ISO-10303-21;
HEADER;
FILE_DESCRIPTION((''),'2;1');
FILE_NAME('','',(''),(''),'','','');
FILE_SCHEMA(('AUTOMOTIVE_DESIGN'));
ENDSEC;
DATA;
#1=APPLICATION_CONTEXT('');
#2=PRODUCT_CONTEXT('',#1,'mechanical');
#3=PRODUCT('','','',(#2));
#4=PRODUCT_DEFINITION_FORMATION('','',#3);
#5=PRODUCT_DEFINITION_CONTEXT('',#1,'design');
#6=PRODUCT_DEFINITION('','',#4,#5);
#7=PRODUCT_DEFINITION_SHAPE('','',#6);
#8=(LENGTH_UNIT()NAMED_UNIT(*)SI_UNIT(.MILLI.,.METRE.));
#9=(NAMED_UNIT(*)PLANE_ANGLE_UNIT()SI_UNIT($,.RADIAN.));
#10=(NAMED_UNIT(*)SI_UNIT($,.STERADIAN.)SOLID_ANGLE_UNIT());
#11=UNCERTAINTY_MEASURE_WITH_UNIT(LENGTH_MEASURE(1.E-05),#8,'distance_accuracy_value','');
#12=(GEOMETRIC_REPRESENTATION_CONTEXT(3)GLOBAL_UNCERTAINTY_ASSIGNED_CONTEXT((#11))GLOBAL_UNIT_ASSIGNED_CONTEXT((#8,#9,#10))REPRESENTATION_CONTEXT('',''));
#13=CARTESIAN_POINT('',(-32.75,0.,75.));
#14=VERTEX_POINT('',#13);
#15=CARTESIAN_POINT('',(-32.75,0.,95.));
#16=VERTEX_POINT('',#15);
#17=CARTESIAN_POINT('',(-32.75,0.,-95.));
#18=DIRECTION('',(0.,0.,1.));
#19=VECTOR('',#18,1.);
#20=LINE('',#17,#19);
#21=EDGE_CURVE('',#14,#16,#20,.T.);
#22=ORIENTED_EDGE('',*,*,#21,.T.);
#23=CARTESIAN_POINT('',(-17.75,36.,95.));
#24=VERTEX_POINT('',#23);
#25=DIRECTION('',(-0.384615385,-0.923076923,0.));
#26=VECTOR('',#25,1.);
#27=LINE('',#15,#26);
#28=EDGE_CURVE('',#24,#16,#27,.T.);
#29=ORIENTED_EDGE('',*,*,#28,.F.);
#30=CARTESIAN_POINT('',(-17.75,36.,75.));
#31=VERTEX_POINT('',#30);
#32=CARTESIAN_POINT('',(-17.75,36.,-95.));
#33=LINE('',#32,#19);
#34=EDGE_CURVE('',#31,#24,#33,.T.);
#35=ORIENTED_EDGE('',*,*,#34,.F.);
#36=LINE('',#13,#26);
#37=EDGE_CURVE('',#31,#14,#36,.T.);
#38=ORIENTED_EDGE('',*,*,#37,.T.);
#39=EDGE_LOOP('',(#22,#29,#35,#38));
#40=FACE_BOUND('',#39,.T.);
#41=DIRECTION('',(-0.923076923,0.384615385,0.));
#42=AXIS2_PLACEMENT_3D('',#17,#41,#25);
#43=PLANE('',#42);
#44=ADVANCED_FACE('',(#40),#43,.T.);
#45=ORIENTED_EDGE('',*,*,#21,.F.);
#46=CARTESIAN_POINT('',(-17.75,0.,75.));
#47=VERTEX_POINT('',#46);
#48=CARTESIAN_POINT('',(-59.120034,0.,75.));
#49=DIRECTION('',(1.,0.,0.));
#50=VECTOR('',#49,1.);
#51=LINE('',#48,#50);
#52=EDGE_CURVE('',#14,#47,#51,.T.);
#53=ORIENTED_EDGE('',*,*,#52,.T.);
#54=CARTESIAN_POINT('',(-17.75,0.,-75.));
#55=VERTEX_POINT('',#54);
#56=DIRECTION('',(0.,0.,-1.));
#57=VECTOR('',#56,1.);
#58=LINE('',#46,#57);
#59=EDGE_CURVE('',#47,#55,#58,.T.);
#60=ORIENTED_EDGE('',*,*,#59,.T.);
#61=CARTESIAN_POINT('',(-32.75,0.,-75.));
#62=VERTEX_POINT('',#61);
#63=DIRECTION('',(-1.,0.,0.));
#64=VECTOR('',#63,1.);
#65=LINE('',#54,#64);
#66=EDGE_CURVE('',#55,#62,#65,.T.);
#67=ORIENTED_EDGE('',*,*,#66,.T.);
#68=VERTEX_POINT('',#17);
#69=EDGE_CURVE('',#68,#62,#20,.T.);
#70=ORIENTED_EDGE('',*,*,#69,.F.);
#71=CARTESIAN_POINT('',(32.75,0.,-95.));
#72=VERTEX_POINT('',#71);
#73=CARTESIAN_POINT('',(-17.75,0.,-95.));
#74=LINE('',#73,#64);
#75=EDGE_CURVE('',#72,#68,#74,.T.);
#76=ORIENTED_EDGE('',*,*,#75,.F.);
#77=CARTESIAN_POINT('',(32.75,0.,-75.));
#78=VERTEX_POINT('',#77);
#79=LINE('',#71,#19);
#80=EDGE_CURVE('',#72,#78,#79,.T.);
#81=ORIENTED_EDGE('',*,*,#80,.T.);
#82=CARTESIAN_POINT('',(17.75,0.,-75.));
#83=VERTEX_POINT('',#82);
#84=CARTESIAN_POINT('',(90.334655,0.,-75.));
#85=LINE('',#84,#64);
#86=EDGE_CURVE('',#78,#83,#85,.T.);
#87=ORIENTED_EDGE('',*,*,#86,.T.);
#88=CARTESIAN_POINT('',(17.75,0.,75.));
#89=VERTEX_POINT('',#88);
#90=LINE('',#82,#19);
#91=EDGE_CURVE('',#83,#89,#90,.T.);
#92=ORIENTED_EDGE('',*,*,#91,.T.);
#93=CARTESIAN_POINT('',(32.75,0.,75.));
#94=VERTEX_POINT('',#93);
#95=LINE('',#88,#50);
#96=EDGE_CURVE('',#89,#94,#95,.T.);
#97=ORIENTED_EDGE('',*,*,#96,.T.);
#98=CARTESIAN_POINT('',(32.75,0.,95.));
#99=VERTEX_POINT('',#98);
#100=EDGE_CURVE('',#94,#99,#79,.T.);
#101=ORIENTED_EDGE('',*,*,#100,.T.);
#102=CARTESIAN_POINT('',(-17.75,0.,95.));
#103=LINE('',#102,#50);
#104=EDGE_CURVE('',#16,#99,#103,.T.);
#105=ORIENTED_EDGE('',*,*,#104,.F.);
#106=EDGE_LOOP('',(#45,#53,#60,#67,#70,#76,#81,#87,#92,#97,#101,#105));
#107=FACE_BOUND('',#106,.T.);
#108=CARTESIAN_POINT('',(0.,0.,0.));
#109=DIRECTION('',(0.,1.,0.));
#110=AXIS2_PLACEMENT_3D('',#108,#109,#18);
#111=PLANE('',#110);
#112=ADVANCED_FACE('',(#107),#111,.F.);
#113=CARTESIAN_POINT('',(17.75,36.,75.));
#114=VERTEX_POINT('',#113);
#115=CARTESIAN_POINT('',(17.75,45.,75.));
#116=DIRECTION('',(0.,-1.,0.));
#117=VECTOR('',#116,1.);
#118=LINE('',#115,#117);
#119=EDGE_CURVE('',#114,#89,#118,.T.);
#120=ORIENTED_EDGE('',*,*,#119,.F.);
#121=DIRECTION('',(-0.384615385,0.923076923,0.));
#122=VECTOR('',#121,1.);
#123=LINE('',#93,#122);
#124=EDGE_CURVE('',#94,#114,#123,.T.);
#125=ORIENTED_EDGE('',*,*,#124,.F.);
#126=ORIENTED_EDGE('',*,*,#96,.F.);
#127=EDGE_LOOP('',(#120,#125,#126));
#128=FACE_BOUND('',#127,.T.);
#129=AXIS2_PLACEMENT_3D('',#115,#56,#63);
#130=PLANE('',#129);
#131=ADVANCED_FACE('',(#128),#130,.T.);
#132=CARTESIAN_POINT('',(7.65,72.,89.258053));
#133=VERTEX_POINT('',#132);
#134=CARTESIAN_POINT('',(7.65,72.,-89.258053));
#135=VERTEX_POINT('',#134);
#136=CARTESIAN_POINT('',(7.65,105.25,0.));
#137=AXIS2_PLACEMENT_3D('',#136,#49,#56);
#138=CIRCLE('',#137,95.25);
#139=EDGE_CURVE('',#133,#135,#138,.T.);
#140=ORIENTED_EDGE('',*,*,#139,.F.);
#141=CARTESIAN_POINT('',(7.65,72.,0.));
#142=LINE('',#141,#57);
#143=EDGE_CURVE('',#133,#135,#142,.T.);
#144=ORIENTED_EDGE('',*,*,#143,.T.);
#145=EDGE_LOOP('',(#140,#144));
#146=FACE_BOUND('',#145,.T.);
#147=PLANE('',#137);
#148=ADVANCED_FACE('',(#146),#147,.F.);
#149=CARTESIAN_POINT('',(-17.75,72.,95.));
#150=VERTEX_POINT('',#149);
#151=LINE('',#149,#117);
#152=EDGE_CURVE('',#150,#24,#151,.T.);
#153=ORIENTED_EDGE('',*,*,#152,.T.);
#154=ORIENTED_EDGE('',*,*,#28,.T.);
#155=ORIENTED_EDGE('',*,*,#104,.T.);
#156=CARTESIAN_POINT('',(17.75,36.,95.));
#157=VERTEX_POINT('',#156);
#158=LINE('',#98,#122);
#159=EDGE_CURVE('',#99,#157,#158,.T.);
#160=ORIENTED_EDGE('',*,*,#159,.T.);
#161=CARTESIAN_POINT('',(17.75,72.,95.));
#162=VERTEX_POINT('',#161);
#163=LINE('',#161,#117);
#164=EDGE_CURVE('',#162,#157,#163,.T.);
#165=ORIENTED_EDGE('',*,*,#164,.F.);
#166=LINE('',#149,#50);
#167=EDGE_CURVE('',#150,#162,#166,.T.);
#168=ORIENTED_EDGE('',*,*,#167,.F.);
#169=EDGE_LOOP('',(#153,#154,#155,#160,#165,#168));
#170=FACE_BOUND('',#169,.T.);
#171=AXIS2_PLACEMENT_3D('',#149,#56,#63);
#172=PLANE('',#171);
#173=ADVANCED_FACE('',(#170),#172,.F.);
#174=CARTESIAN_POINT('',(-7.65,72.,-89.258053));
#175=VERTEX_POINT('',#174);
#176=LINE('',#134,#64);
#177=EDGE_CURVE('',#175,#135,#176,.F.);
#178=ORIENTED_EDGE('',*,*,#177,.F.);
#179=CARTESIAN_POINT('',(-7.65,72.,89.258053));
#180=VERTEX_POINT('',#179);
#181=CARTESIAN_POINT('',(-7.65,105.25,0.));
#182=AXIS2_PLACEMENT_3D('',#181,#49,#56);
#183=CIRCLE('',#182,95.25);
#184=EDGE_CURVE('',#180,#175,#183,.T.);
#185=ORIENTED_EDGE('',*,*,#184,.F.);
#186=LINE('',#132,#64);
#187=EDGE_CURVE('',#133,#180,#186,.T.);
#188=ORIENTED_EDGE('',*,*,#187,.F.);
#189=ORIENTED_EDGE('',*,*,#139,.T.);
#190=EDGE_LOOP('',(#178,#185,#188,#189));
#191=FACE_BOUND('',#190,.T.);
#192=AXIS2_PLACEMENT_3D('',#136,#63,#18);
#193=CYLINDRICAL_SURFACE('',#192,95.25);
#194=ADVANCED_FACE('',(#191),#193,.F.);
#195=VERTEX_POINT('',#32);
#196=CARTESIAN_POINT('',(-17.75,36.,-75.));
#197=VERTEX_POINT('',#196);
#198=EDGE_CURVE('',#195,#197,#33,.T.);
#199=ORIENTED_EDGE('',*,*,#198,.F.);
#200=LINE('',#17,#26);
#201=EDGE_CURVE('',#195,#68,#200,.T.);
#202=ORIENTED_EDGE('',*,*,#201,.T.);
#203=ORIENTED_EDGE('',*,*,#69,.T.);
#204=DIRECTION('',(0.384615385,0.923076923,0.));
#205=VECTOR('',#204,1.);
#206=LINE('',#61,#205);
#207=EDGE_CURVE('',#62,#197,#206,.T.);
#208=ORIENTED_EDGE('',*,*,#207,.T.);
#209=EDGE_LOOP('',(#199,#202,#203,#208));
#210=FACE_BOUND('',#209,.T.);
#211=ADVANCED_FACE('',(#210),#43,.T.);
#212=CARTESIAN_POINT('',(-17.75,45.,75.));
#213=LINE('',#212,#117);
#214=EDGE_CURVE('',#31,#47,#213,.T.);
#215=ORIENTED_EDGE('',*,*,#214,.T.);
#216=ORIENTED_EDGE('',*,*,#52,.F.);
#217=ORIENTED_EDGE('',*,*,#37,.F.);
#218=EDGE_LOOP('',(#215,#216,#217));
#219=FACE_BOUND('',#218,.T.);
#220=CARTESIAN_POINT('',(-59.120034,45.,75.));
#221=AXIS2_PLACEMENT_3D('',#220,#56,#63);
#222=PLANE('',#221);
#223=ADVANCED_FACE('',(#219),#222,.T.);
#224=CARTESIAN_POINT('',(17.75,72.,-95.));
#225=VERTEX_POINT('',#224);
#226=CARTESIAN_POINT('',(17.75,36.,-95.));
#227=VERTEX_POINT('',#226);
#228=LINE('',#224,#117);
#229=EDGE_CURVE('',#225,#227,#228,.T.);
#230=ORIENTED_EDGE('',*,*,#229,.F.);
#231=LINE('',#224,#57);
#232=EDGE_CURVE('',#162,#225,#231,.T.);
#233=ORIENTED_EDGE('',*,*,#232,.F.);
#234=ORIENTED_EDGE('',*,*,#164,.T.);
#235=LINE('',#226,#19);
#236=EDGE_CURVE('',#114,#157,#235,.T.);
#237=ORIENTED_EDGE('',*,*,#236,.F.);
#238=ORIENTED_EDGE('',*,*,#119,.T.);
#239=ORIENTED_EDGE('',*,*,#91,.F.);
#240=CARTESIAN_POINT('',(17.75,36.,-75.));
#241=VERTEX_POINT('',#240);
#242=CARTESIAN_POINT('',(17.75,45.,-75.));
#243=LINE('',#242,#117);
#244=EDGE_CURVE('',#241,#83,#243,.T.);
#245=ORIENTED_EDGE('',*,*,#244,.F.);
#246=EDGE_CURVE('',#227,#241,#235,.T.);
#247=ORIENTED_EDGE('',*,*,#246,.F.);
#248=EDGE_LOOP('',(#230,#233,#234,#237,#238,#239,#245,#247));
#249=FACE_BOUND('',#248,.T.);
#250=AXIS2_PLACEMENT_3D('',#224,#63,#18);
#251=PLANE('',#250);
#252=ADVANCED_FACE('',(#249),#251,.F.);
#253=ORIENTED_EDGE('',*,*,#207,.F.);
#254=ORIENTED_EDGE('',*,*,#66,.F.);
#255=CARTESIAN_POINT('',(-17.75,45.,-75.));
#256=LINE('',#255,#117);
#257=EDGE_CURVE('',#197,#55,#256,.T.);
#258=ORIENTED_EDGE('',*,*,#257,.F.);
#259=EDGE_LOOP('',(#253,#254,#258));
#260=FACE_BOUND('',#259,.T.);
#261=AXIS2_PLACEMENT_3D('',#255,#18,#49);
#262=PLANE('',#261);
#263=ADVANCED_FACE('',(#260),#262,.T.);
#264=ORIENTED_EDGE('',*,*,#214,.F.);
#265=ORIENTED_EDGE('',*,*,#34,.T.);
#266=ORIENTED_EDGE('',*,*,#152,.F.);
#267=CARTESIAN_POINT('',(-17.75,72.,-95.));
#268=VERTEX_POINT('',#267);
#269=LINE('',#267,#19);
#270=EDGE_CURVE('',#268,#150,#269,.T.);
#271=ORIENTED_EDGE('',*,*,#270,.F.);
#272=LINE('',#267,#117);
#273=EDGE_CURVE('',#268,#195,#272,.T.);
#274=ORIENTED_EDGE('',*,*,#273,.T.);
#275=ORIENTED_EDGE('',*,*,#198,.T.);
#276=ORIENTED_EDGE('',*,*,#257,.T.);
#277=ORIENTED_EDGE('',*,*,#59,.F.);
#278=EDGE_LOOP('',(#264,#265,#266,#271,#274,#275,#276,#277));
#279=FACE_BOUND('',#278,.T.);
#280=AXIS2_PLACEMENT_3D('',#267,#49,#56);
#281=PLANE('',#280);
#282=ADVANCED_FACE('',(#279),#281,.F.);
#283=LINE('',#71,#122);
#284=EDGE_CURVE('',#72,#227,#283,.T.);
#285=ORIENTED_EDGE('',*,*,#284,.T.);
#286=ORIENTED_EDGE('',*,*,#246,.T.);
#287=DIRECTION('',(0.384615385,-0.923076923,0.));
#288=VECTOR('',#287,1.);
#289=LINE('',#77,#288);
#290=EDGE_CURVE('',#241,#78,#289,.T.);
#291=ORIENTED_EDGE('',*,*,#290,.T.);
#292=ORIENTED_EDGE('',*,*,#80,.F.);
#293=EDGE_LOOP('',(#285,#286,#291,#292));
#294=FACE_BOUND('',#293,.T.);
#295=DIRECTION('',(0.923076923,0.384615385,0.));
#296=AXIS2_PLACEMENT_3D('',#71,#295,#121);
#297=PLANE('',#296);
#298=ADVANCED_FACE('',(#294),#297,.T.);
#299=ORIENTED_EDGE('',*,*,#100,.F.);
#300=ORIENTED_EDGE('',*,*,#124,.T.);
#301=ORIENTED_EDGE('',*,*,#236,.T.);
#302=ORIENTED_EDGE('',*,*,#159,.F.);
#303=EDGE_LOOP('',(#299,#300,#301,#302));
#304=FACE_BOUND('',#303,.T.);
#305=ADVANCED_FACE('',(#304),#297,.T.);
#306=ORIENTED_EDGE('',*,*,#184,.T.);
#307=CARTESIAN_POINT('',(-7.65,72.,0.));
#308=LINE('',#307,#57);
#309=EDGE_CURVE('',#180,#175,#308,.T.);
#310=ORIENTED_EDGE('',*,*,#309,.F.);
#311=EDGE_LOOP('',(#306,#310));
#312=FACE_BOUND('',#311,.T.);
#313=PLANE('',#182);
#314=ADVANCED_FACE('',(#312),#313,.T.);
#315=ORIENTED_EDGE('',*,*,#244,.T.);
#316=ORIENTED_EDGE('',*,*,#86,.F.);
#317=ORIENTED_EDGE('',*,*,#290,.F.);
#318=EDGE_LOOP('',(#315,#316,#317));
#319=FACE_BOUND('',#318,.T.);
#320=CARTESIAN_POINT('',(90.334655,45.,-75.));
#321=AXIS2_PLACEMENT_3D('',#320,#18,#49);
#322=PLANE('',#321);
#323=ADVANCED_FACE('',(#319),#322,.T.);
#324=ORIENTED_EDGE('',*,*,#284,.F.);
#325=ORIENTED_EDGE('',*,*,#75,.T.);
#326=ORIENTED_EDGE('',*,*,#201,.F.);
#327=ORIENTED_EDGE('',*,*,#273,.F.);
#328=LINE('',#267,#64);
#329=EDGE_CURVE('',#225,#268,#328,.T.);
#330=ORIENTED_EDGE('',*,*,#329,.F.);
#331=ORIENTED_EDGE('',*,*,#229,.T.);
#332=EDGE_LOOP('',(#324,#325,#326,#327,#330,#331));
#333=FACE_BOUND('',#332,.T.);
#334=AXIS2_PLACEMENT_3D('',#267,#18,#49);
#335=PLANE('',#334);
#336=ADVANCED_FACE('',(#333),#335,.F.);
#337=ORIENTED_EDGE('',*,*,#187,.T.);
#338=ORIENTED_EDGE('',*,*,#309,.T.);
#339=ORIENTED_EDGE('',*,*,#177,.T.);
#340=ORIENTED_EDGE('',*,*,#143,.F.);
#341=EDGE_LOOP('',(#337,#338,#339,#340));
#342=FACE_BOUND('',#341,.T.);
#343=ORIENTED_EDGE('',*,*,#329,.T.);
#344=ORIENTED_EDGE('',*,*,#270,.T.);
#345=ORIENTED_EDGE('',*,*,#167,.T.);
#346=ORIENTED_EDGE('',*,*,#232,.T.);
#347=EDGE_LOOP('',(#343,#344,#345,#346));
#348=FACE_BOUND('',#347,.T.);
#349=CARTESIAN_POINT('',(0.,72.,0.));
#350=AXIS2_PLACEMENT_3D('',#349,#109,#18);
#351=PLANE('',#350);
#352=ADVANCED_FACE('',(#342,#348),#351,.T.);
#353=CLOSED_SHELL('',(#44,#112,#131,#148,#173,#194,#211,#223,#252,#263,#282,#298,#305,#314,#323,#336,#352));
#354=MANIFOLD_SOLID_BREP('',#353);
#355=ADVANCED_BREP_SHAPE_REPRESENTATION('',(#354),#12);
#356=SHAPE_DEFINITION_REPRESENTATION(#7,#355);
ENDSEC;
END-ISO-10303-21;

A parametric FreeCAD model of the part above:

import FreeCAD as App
import Part
import Sketcher

V = App.Vector

doc = App.newDocument("Part")
body = doc.addObject("PartDesign::Body", "Body")

# Sketch on XZ plane
sketch1 = doc.addObject("Sketcher::SketchObject", "Sketch")
body.addObject(sketch1)
sketch1.AttachmentSupport = (doc.XZ_Plane, [""])
sketch1.MapMode = "FlatFace"
sketch1.addGeometry([
    Part.LineSegment(V(-18, -95, 0), V(-18, 95, 0)),
    Part.LineSegment(V(-18, 95, 0), V(18, 95, 0)),
    Part.LineSegment(V(18, 95, 0), V(18, -95, 0)),
    Part.LineSegment(V(18, -95, 0), V(-18, -95, 0)),
], False)
sketch1.addConstraint([
    Sketcher.Constraint("Coincident", 0, 2, 1, 1),
    Sketcher.Constraint("Coincident", 1, 2, 2, 1),
    Sketcher.Constraint("Coincident", 2, 2, 3, 1),
    Sketcher.Constraint("Coincident", 3, 2, 0, 1),
    Sketcher.Constraint("Vertical", 0),
    Sketcher.Constraint("Horizontal", 1),
    Sketcher.Constraint("Vertical", 2),
    Sketcher.Constraint("Horizontal", 3),
    Sketcher.Constraint("Symmetric", 0, 2, 2, 2, -1, 1),
    Sketcher.Constraint("DistanceY", 0, 1, 0, 2, 190.0),
    Sketcher.Constraint("DistanceX", 1, 1, 1, 2, 35.5),
])
pad1 = doc.addObject("PartDesign::Pad", "Pad")
body.addObject(pad1)
pad1.Profile = sketch1
pad1.Length = 72
pad1.Reversed = True

# Sketch on YZ plane
sketch2 = doc.addObject("Sketcher::SketchObject", "Sketch001")
body.addObject(sketch2)
sketch2.AttachmentSupport = (doc.YZ_Plane, [""])
sketch2.MapMode = "FlatFace"
sketch2.addGeometry(Part.Circle(V(105, 0, 0), V(0, 0, 1), 95), False)
sketch2.addConstraint([
    Sketcher.Constraint("PointOnObject", 0, 3, -1),
    Sketcher.Constraint("Diameter", 0, 190.5),
    Sketcher.Constraint("DistanceX", -1, 1, 0, 3, 105.25),
])
pocket1 = doc.addObject("PartDesign::Pocket", "Pocket")
body.addObject(pocket1)
pocket1.Profile = sketch2
pocket1.Type = "TwoLengths"
pocket1.Length = 7.65
pocket1.Length2 = 7.65
pocket1.Reversed = True

# Sketch on XY plane
sketch3 = doc.addObject("Sketcher::SketchObject", "Sketch002")
body.addObject(sketch3)
sketch3.AttachmentSupport = (doc.XY_Plane, [""])
sketch3.MapMode = "FlatFace"
sketch3.addGeometry([
    Part.LineSegment(V(-33, 0, 0), V(-18, 0, 0)),  # 0
    Part.LineSegment(V(-18, 0, 0), V(-18, 36, 0)),  # 1
    Part.LineSegment(V(-18, 36, 0), V(-33, 0, 0)),  # 2
    Part.LineSegment(V(18, 0, 0), V(33, 0, 0)),  # 3
    Part.LineSegment(V(33, 0, 0), V(18, 36, 0)),  # 4
    Part.LineSegment(V(18, 36, 0), V(18, 0, 0)),  # 5
], False)
sketch3.addConstraint([
    Sketcher.Constraint("Coincident", 0, 2, 1, 1),
    Sketcher.Constraint("Coincident", 1, 2, 2, 1),
    Sketcher.Constraint("Coincident", 2, 2, 0, 1),
    Sketcher.Constraint("Coincident", 3, 2, 4, 1),
    Sketcher.Constraint("Coincident", 4, 2, 5, 1),
    Sketcher.Constraint("Coincident", 5, 2, 3, 1),
    Sketcher.Constraint("Horizontal", 0),
    Sketcher.Constraint("Vertical", 1),
    Sketcher.Constraint("Horizontal", 3),
    Sketcher.Constraint("Vertical", 5),
    Sketcher.Constraint("Symmetric", 2, 2, 3, 2, -1, 1),
    Sketcher.Constraint("Symmetric", 1, 2, 4, 2, -2),
    Sketcher.Constraint("PointOnObject", 0, 2, -1),
    Sketcher.Constraint("DistanceX", 0, 1, 0, 2, 15.0),
    Sketcher.Constraint("DistanceY", 1, 1, 1, 2, 36.0),
    Sketcher.Constraint("DistanceX", 0, 2, 3, 2, 50.5),
])
pad2 = doc.addObject("PartDesign::Pad", "Pad001")
body.addObject(pad2)
pad2.Profile = sketch3
pad2.Type = "TwoLengths"
pad2.Length = 95
pad2.Length2 = 95

# Sketch on XZ plane
sketch4 = doc.addObject("Sketcher::SketchObject", "Sketch003")
body.addObject(sketch4)
sketch4.AttachmentSupport = (doc.XZ_Plane, [""])
sketch4.MapMode = "FlatFace"
sketch4.addGeometry([
    Part.LineSegment(V(-59, -75, 0), V(-59, 75, 0)),
    Part.LineSegment(V(-59, 75, 0), V(-18, 75, 0)),
    Part.LineSegment(V(-18, 75, 0), V(-18, -75, 0)),
    Part.LineSegment(V(-18, -75, 0), V(-59, -75, 0)),
], False)
sketch4.addConstraint([
    Sketcher.Constraint("Coincident", 0, 2, 1, 1),
    Sketcher.Constraint("Coincident", 1, 2, 2, 1),
    Sketcher.Constraint("Coincident", 2, 2, 3, 1),
    Sketcher.Constraint("Coincident", 3, 2, 0, 1),
    Sketcher.Constraint("Vertical", 0),
    Sketcher.Constraint("Horizontal", 1),
    Sketcher.Constraint("Vertical", 2),
    Sketcher.Constraint("Horizontal", 3),
    Sketcher.Constraint("DistanceY", 0, 1, 0, 2, 150.0),
    Sketcher.Constraint("DistanceY", -1, 1, 0, 2, 75.0),
    Sketcher.Constraint("DistanceX", 1, 2, -1, 1, 17.75),
    Sketcher.Constraint("DistanceX", 1, 1, 1, 2, 41.370034),
])
pocket2 = doc.addObject("PartDesign::Pocket", "Pocket001")
body.addObject(pocket2)
pocket2.Profile = sketch4
pocket2.Length = 45

# Sketch on XZ plane
sketch5 = doc.addObject("Sketcher::SketchObject", "Sketch004")
body.addObject(sketch5)
sketch5.AttachmentSupport = (doc.XZ_Plane, [""])
sketch5.MapMode = "FlatFace"
sketch5.addGeometry([
    Part.LineSegment(V(18, -75, 0), V(18, 75, 0)),
    Part.LineSegment(V(18, 75, 0), V(90, 75, 0)),
    Part.LineSegment(V(90, 75, 0), V(90, -75, 0)),
    Part.LineSegment(V(90, -75, 0), V(18, -75, 0)),
], False)
sketch5.addConstraint([
    Sketcher.Constraint("Coincident", 0, 2, 1, 1),
    Sketcher.Constraint("Coincident", 1, 2, 2, 1),
    Sketcher.Constraint("Coincident", 2, 2, 3, 1),
    Sketcher.Constraint("Coincident", 3, 2, 0, 1),
    Sketcher.Constraint("Vertical", 0),
    Sketcher.Constraint("Horizontal", 1),
    Sketcher.Constraint("Vertical", 2),
    Sketcher.Constraint("Horizontal", 3),
    Sketcher.Constraint("DistanceY", 0, 1, 0, 2, 150.0),
    Sketcher.Constraint("DistanceY", -1, 1, 0, 2, 75.0),
    Sketcher.Constraint("DistanceX", -1, 1, 0, 2, 17.75),
    Sketcher.Constraint("DistanceX", 1, 1, 1, 2, 72.584655),
])
pocket3 = doc.addObject("PartDesign::Pocket", "Pocket002")
body.addObject(pocket3)
pocket3.Profile = sketch5
pocket3.Length = 45

doc.recompute()
